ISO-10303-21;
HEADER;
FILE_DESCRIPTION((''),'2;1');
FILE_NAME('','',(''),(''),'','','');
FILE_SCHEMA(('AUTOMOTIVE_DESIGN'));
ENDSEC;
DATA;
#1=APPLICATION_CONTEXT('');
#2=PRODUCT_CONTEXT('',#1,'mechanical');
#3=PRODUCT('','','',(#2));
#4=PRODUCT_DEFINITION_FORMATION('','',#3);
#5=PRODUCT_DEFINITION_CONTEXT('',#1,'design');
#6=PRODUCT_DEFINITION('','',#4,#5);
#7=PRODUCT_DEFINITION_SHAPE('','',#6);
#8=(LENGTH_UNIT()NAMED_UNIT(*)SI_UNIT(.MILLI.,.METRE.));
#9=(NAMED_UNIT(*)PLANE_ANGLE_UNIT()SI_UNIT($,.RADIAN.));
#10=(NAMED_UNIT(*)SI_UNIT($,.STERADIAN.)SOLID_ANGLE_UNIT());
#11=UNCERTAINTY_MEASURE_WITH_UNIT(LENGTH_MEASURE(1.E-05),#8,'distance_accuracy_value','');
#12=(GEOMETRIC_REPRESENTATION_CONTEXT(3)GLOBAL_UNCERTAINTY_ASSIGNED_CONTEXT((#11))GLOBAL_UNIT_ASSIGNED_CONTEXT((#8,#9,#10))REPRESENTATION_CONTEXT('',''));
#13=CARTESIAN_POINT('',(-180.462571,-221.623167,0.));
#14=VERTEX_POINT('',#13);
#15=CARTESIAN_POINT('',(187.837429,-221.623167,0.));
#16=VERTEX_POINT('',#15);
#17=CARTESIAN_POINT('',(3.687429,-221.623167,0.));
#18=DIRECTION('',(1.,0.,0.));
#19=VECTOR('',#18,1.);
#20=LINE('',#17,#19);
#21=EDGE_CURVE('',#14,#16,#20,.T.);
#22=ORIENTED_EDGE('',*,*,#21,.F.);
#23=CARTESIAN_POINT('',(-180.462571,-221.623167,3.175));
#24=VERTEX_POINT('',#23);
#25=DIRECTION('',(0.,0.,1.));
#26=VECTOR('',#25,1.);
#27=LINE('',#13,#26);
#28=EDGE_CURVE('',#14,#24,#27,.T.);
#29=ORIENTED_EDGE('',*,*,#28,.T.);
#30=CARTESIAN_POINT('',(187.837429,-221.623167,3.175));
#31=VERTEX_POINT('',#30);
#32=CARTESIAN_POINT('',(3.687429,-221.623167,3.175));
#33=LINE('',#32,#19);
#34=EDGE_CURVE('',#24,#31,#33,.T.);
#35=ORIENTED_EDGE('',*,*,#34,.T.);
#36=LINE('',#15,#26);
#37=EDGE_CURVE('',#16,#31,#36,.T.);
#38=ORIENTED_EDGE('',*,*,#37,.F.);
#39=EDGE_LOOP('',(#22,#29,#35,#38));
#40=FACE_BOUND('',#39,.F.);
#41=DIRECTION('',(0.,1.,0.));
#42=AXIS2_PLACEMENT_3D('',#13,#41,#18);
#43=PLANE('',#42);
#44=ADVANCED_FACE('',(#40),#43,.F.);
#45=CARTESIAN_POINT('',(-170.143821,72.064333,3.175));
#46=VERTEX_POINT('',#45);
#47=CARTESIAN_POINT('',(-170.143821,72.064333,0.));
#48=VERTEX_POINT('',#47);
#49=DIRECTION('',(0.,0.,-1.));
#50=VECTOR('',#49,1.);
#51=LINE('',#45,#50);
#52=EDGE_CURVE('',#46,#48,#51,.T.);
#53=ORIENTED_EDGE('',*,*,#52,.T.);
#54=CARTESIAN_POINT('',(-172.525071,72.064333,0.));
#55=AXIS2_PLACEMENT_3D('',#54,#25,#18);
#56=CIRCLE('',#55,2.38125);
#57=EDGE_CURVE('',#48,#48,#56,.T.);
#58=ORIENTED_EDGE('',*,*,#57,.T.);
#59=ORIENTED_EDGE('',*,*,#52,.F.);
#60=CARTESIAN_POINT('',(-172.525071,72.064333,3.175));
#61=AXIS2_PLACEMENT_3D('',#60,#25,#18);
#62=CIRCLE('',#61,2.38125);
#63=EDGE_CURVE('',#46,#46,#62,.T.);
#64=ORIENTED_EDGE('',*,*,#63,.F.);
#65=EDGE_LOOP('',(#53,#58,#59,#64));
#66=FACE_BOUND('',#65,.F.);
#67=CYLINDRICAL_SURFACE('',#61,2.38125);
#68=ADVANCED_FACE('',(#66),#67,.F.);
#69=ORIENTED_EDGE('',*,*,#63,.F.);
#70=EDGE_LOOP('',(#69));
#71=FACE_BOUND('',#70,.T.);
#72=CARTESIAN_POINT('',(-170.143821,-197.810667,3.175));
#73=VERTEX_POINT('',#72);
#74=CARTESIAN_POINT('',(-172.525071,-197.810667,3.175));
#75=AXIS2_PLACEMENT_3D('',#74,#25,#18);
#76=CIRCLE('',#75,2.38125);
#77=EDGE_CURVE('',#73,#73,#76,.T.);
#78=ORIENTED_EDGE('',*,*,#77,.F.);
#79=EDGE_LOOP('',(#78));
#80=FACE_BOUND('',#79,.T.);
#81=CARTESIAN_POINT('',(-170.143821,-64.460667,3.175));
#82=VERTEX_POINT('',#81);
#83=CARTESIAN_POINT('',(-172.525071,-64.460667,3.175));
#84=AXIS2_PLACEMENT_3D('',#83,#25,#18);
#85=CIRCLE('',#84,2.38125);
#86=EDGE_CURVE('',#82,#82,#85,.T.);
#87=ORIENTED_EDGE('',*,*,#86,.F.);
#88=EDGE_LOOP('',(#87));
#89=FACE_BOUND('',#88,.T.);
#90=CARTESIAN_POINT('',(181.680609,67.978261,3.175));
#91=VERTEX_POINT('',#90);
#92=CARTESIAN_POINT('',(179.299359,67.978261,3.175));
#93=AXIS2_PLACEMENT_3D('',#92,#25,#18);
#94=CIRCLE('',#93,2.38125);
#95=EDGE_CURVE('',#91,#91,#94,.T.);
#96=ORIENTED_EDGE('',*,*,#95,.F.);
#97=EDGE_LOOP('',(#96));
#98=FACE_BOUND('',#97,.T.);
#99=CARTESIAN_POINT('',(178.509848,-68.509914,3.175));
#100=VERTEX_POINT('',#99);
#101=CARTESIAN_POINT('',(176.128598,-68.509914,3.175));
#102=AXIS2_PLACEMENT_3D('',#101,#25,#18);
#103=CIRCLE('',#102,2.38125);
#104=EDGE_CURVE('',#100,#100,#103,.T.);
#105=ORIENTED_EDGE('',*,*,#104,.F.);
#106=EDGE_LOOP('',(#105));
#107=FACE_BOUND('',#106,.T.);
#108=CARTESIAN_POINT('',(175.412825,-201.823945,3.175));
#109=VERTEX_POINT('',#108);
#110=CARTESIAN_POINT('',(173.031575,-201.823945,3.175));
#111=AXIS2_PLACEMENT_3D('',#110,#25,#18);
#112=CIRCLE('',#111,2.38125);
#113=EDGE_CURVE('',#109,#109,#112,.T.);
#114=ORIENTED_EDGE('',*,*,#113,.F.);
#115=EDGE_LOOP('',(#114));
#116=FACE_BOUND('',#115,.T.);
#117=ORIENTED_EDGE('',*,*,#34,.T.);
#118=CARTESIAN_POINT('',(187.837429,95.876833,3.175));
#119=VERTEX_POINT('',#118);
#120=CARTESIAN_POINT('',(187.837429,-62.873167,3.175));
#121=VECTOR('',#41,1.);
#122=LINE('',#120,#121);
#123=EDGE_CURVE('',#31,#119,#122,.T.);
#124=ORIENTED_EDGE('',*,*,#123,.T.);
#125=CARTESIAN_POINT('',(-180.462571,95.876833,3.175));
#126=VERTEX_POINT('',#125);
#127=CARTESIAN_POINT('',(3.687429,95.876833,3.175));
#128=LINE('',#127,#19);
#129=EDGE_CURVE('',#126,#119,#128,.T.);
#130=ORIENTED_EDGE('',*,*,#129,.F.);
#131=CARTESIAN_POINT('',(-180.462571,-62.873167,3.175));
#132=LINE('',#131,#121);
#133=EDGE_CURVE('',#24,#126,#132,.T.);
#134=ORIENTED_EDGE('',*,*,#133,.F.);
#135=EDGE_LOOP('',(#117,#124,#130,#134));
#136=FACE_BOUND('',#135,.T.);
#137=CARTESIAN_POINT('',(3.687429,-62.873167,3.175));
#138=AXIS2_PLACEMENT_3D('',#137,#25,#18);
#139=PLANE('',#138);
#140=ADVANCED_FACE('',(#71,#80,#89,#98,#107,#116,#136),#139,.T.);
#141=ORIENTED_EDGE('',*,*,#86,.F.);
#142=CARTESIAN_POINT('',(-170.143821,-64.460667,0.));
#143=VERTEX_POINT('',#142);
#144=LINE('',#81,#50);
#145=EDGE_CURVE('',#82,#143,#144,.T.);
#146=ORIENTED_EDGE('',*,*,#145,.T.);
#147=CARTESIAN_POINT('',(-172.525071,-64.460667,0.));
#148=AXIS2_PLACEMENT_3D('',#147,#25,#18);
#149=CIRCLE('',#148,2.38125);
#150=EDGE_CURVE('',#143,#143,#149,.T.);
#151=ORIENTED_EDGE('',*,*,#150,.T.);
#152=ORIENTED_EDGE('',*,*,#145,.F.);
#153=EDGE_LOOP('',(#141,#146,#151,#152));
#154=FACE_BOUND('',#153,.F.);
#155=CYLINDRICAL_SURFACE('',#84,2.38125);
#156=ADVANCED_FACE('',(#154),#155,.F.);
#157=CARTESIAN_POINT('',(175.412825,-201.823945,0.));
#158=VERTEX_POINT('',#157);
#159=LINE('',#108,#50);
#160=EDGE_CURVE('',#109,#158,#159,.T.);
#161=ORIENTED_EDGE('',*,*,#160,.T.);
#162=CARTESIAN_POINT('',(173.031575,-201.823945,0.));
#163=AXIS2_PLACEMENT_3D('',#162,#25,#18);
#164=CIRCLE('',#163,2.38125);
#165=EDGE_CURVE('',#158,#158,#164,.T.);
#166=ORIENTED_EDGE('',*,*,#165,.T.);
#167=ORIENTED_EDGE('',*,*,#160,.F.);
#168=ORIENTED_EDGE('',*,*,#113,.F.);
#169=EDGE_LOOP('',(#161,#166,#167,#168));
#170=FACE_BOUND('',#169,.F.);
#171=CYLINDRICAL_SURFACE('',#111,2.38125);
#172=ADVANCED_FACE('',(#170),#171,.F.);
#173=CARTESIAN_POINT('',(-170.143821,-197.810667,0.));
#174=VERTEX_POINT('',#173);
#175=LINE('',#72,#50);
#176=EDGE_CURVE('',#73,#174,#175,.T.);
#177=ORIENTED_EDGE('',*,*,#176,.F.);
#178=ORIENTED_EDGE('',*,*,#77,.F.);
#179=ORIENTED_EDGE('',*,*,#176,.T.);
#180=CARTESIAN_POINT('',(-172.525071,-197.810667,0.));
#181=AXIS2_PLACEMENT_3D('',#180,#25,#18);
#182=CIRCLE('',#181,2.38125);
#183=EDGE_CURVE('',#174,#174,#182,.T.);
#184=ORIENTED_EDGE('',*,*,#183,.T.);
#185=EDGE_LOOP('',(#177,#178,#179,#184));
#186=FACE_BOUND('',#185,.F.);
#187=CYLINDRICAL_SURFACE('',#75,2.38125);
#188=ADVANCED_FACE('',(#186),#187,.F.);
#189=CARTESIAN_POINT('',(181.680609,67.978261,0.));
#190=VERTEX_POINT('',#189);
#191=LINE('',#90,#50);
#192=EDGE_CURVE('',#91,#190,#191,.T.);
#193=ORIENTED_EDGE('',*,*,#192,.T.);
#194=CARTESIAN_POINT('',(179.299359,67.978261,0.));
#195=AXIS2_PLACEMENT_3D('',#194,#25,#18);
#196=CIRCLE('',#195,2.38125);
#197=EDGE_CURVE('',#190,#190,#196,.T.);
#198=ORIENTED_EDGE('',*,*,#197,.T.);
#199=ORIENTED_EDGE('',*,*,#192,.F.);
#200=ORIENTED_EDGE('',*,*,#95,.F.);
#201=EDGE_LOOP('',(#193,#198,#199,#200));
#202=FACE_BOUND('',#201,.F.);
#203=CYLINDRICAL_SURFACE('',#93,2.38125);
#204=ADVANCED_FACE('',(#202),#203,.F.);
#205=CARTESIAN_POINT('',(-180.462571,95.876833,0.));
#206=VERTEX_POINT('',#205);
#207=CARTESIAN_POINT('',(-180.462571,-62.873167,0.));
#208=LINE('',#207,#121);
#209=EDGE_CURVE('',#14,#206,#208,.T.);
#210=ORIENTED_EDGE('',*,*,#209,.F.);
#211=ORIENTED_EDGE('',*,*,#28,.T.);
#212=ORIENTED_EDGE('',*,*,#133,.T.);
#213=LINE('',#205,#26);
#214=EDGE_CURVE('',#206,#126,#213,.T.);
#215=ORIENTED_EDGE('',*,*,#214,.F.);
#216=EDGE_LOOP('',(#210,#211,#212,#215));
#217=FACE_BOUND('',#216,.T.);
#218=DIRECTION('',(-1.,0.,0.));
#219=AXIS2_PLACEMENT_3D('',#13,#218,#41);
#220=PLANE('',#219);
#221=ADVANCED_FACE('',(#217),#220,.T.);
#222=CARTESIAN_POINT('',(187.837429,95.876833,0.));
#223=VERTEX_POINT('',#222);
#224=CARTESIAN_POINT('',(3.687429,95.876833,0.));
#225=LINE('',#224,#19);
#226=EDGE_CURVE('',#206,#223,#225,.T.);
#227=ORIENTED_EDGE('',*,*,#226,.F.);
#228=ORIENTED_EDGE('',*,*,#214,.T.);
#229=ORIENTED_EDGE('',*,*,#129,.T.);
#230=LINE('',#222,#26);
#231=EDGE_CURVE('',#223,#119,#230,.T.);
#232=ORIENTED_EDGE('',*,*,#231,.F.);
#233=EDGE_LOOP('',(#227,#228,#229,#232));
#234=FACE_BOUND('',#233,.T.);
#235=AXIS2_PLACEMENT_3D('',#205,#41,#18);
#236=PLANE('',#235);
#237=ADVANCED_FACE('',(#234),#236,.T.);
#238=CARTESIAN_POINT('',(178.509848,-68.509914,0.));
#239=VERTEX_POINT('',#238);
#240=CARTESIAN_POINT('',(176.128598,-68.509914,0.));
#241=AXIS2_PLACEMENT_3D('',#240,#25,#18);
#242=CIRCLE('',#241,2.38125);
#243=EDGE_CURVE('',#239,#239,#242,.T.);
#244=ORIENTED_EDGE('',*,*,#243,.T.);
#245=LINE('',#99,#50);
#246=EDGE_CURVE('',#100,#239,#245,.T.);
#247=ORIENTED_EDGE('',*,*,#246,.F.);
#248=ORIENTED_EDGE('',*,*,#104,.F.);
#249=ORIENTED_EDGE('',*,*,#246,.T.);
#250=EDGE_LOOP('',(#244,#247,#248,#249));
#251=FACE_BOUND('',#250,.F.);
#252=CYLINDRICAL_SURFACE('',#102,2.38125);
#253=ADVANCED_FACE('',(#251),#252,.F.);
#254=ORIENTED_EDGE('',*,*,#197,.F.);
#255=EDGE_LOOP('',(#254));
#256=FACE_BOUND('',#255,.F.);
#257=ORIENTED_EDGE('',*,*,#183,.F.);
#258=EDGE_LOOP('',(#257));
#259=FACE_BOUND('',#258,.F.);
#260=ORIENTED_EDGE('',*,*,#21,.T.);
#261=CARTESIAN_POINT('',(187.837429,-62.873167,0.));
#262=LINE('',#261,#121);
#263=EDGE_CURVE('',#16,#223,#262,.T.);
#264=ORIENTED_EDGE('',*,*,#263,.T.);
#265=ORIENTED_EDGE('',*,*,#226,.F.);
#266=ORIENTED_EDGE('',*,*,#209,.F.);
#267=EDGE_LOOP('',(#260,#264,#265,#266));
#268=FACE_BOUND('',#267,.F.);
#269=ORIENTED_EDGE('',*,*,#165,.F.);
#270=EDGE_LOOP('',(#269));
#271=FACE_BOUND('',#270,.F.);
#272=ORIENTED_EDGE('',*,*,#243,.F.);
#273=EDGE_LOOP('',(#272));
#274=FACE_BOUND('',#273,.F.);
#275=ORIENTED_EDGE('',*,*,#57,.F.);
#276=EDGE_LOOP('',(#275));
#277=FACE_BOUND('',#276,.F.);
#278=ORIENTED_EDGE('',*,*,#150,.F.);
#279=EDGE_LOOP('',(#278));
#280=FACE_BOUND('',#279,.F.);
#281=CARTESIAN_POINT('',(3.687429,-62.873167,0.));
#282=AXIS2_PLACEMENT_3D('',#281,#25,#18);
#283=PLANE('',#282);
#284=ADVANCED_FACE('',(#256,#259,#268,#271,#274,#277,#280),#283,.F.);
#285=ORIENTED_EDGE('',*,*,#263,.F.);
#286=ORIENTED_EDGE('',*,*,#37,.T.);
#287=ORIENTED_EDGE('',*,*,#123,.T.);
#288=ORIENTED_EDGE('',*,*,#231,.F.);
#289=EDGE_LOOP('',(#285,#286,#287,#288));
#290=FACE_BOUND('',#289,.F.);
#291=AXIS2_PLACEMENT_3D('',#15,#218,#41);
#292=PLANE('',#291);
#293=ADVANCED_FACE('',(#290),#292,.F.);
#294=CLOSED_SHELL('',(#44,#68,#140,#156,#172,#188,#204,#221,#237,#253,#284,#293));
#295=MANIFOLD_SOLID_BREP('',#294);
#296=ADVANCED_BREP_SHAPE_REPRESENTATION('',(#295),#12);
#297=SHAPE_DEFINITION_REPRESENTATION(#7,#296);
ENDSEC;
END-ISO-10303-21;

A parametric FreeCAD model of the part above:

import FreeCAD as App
import Part
import Sketcher
from FreeCAD import Vector
Q = App.Units.Quantity


def add_polygon(sketch, points):
    """Adds a closed chain of lines whose ends are joined by coincident constraints."""
    first, n = sketch.GeometryCount, len(points)
    for a, b in zip(points, points[1:] + points[:1]):
        sketch.addGeometry(Part.LineSegment(App.Vector(*a, 0), App.Vector(*b, 0)), False)
    for i in range(n):
        sketch.addConstraint(Sketcher.Constraint("Coincident", first + i, 2, first + (i + 1) % n, 1))

doc = App.newDocument("Part")
body = doc.addObject("PartDesign::Body", "Body")

# Sketch on XY plane
sketch1 = body.newObject("Sketcher::SketchObject", "Sketch")
sketch1.AttachmentSupport = (doc.getObject("XY_Plane"), [""])
sketch1.MapMode = "FlatFace"
add_polygon(sketch1, [(-180, 96), (-180, -222), (188, -222), (188, 96)])  # lines 0-3
sketch1.addConstraint(Sketcher.Constraint("Vertical", 0))
sketch1.addConstraint(Sketcher.Constraint("Horizontal", 1))
sketch1.addConstraint(Sketcher.Constraint("Vertical", 2))
sketch1.addConstraint(Sketcher.Constraint("Horizontal", 3))
sketch1.addConstraint(Sketcher.Constraint("DistanceX", 1, 1, 1, 2, Q("14.5 in")))
sketch1.addConstraint(Sketcher.Constraint("DistanceY", 0, 2, 0, 1, Q("12.5 in")))
sketch1.addConstraint(Sketcher.Constraint("DistanceX", 0, 2, -1, 1, 180.462571))
sketch1.addConstraint(Sketcher.Constraint("DistanceY", 0, 2, -1, 1, 221.623167))
pad1 = body.newObject("PartDesign::Pad", "Pad")
pad1.Profile = sketch1
pad1.Length = Q("0.125 in")

# Sketch on XY plane
sketch2 = body.newObject("Sketcher::SketchObject", "Sketch001")
sketch2.AttachmentSupport = (doc.getObject("XY_Plane"), [""])
sketch2.MapMode = "FlatFace"
sketch2.AttachmentOffset = App.Placement(Vector(0, 0, 0.125 * 25.4), App.Rotation())
sketch2.addGeometry(Part.Circle(Vector(-172.5, -197.8, 0), Vector(0, 0, 1), 2.4), False)
sketch2.addGeometry(Part.Circle(Vector(-172.5, -64.5, 0), Vector(0, 0, 1), 2.4), False)
sketch2.addGeometry(Part.Circle(Vector(-172.5, 72.1, 0), Vector(0, 0, 1), 2.4), False)
sketch2.addGeometry(Part.Circle(Vector(173, -201.8, 0), Vector(0, 0, 1), 2.4), False)
sketch2.addGeometry(Part.Circle(Vector(176.1, -68.5, 0), Vector(0, 0, 1), 2.4), False)
sketch2.addGeometry(Part.Circle(Vector(179.3, 68, 0), Vector(0, 0, 1), 2.4), False)
sketch2.addConstraint(Sketcher.Constraint("Equal", 0, 1))
sketch2.addConstraint(Sketcher.Constraint("Equal", 1, 2))
sketch2.addConstraint(Sketcher.Constraint("Equal", 2, 3))
sketch2.addConstraint(Sketcher.Constraint("Equal", 3, 4))
sketch2.addConstraint(Sketcher.Constraint("Equal", 4, 5))
sketch2.addConstraint(Sketcher.Constraint("Vertical", 0, 3, 1, 3))
sketch2.addConstraint(Sketcher.Constraint("Vertical", 1, 3, 2, 3))
sketch2.addConstraint(Sketcher.Constraint("Diameter", 0, Q("0.1875 in")))
sketch2.addConstraint(Sketcher.Constraint("DistanceY", 0, 3, 1, 3, Q("5.25 in")))
sketch2.addConstraint(Sketcher.Constraint("DistanceY", 1, 3, 2, 3, Q("5.375 in")))
sketch2.addConstraint(Sketcher.Constraint("DistanceX", -1, 1, 4, 3, 176.128598))
sketch2.addConstraint(Sketcher.Constraint("DistanceX", 0, 3, -1, 1, 172.525071))
sketch2.addConstraint(Sketcher.Constraint("DistanceX", -1, 1, 5, 3, 179.299359))
sketch2.addConstraint(Sketcher.Constraint("DistanceY", -1, 1, 5, 3, 67.978261))
sketch2.addConstraint(Sketcher.Constraint("DistanceY", 3, 3, 0, 3, 4.013278))
sketch2.addConstraint(Sketcher.Constraint("DistanceY", 3, 3, 4, 3, 133.314031))
sketch2.addConstraint(Sketcher.Constraint("DistanceY", 1, 3, 5, 3, 132.438928))
sketch2.addConstraint(Sketcher.Constraint("DistanceX", -1, 1, 3, 3, 173.031575))
pocket1 = body.newObject("PartDesign::Pocket", "Pocket")
pocket1.Profile = sketch2
pocket1.Length = Q("1 in")

doc.recompute()
